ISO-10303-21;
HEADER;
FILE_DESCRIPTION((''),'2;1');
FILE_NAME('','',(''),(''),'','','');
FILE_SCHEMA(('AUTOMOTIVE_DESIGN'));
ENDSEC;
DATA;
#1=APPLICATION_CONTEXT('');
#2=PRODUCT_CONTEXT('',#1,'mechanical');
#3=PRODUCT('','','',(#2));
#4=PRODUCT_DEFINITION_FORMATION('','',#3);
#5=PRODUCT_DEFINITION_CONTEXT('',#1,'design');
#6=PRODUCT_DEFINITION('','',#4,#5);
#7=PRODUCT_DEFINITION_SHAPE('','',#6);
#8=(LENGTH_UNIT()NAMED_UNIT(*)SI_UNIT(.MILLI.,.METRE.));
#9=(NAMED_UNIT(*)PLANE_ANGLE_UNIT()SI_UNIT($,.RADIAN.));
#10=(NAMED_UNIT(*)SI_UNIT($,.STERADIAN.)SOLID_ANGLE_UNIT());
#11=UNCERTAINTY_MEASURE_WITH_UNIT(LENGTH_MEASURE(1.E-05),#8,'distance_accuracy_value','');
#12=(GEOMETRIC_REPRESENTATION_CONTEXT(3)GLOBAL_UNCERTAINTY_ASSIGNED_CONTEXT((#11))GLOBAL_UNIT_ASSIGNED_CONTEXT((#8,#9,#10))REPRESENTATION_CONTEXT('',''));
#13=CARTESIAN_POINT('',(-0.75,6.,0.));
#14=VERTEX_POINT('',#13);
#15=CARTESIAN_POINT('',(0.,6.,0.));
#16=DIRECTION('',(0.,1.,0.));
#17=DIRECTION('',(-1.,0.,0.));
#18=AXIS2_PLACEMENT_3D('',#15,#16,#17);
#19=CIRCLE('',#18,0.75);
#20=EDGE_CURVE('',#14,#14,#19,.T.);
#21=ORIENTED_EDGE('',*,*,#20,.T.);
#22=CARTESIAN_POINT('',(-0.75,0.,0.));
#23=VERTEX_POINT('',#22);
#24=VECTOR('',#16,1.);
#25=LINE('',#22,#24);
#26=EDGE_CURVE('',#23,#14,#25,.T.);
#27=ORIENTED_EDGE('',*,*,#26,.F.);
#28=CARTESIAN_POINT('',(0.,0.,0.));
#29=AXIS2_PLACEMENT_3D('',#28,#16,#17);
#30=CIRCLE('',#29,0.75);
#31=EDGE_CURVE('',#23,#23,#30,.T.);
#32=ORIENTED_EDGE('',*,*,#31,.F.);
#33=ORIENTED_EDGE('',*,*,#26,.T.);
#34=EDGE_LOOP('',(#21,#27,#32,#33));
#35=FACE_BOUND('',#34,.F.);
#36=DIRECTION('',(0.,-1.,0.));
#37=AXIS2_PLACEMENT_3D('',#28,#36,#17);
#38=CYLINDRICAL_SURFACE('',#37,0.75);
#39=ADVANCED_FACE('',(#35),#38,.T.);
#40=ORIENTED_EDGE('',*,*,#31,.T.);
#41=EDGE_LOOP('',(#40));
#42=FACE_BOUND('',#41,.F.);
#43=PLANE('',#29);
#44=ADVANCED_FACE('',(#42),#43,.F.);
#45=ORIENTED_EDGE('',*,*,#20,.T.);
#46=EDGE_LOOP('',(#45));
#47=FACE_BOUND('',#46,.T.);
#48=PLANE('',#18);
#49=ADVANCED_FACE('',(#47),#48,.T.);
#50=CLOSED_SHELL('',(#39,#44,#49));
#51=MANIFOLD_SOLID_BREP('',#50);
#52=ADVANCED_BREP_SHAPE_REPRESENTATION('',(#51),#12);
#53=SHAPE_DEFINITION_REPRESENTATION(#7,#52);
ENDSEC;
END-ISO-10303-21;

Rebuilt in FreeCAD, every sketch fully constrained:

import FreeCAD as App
import Part
import Sketcher
Q = App.Units.Quantity

doc = App.newDocument("Part")
params = doc.addObject("Spreadsheet::Sheet", "Params")
for row, (alias, value) in enumerate([
    ("sketch1_diameter", "1.5 mm"),
    ("pad1_length", "6 mm"),
], start=1):
    params.set(f"A{row}", alias)
    params.set(f"B{row}", "=" + value)
    params.setAlias(f"B{row}", alias)

body = doc.addObject("PartDesign::Body", "Body")

sketch1 = doc.addObject("Sketcher::SketchObject", "Sketch")
body.addObject(sketch1)
sketch1.AttachmentSupport = (doc.XZ_Plane, [""])
sketch1.MapMode = "FlatFace"
sketch1.addGeometry(Part.Circle(App.Vector(0, 0, 0), App.Vector(0, 0, 1), 0.8), False)
sketch1.addConstraint(Sketcher.Constraint("Coincident", 0, 3, -1, 1))
sketch1.addConstraint(Sketcher.Constraint("Diameter", 0, Q("1.5 mm")))
sketch1.setExpression("Constraints[1]", "Params.sketch1_diameter")
pad1 = doc.addObject("PartDesign::Pad", "Pad")
body.addObject(pad1)
pad1.Profile = sketch1
pad1.setExpression("Length", "Params.pad1_length")
pad1.Reversed = True

doc.recompute()
